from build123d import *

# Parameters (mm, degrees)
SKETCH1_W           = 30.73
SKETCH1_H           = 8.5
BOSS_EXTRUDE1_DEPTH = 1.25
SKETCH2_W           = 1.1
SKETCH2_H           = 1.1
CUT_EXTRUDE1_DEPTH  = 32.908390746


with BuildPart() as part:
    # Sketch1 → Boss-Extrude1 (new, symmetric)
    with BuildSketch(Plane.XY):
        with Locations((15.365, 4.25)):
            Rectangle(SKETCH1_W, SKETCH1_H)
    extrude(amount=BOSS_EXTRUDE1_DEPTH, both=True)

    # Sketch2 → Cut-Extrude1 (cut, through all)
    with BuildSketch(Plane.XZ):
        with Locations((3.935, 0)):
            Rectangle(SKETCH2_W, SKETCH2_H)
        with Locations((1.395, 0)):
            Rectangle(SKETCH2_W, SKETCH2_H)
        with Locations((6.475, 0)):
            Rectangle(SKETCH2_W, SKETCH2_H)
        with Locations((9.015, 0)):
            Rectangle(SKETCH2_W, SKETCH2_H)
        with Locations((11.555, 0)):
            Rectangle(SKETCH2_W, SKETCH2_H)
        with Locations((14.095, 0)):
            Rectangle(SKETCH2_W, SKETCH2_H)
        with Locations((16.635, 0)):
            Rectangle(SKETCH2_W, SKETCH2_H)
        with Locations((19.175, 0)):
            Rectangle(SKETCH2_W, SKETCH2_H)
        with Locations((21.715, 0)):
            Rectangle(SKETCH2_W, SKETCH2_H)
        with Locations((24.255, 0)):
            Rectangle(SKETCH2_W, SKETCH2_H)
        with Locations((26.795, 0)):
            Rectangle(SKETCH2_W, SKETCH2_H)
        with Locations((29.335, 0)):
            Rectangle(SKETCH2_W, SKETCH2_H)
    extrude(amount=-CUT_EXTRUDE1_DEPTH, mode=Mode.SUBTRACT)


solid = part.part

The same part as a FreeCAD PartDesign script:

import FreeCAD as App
import Part
import Sketcher
Q = App.Units.Quantity

doc = App.newDocument("Part")
params = doc.addObject("Spreadsheet::Sheet", "Params")
for row, (alias, value) in enumerate([
    ("sketch1_height", "8.5 mm"),
    ("sketch1_width", "30.73 mm"),
    ("pad1_length", "2.5 mm"),
    ("sketch2_width", "1.1 mm"),
], start=1):
    params.set(f"A{row}", alias)
    params.set(f"B{row}", "=" + value)
    params.setAlias(f"B{row}", alias)

body = doc.addObject("PartDesign::Body", "Body")

sketch1 = body.newObject("Sketcher::SketchObject", "Sketch")
sketch1.AttachmentSupport = (doc.getObject("XY_Plane"), [""])
sketch1.MapMode = "FlatFace"
sketch1.addGeometry([
    Part.LineSegment(App.Vector(0, 8, 0), App.Vector(0, 0, 0)),
    Part.LineSegment(App.Vector(0, 0, 0), App.Vector(31, 0, 0)),
    Part.LineSegment(App.Vector(31, 0, 0), App.Vector(31, 8, 0)),
    Part.LineSegment(App.Vector(31, 8, 0), App.Vector(0, 8, 0)),
], False)
sketch1.addConstraint([
    Sketcher.Constraint("Coincident", 0, 2, 1, 1),
    Sketcher.Constraint("Coincident", 1, 2, 2, 1),
    Sketcher.Constraint("Coincident", 2, 2, 3, 1),
    Sketcher.Constraint("Coincident", 3, 2, 0, 1),
    Sketcher.Constraint("Vertical", 0),
    Sketcher.Constraint("Horizontal", 1),
    Sketcher.Constraint("Vertical", 2),
    Sketcher.Constraint("Horizontal", 3),
    Sketcher.Constraint("Coincident", 0, 2, -1, 1),
    Sketcher.Constraint("DistanceY", 0, 2, 0, 1, Q("8.5 mm")),
    Sketcher.Constraint("DistanceX", 1, 1, 1, 2, Q("30.73 mm")),
])
sketch1.setExpression("Constraints[9]", "Params.sketch1_height")
sketch1.setExpression("Constraints[10]", "Params.sketch1_width")
pad1 = body.newObject("PartDesign::Pad", "Pad")
pad1.Profile = sketch1
pad1.setExpression("Length", "Params.pad1_length")
pad1.Midplane = True

sketch2 = body.newObject("Sketcher::SketchObject", "Sketch001")
sketch2.AttachmentSupport = (doc.getObject("XZ_Plane"), [""])
sketch2.MapMode = "FlatFace"
sketch2.addGeometry([
    Part.LineSegment(App.Vector(3.4, 0.6, 0), App.Vector(3.4, -0.6, 0)),
    Part.LineSegment(App.Vector(3.4, -0.6, 0), App.Vector(4.5, -0.6, 0)),
    Part.LineSegment(App.Vector(4.5, -0.6, 0), App.Vector(4.5, 0.6, 0)),
    Part.LineSegment(App.Vector(4.5, 0.6, 0), App.Vector(3.4, 0.6, 0)),
    Part.LineSegment(App.Vector(0.8, 0.6, 0), App.Vector(0.8, -0.6, 0)),
    Part.LineSegment(App.Vector(0.8, -0.6, 0), App.Vector(1.9, -0.6, 0)),
    Part.LineSegment(App.Vector(1.9, -0.6, 0), App.Vector(1.9, 0.6, 0)),
    Part.LineSegment(App.Vector(1.9, 0.6, 0), App.Vector(0.8, 0.6, 0)),
    Part.LineSegment(App.Vector(5.9, 0.6, 0), App.Vector(5.9, -0.6, 0)),
    Part.LineSegment(App.Vector(5.9, -0.6, 0), App.Vector(7, -0.6, 0)),
    Part.LineSegment(App.Vector(7, -0.6, 0), App.Vector(7, 0.6, 0)),
    Part.LineSegment(App.Vector(7, 0.6, 0), App.Vector(5.9, 0.6, 0)),
    Part.LineSegment(App.Vector(8.5, 0.6, 0), App.Vector(8.5, -0.6, 0)),
    Part.LineSegment(App.Vector(8.5, -0.6, 0), App.Vector(9.6, -0.6, 0)),
    Part.LineSegment(App.Vector(9.6, -0.6, 0), App.Vector(9.6, 0.6, 0)),
    Part.LineSegment(App.Vector(9.6, 0.6, 0), App.Vector(8.5, 0.6, 0)),
    Part.LineSegment(App.Vector(11, 0.6, 0), App.Vector(11, -0.6, 0)),
    Part.LineSegment(App.Vector(11, -0.6, 0), App.Vector(12.1, -0.6, 0)),
    Part.LineSegment(App.Vector(12.1, -0.6, 0), App.Vector(12.1, 0.6, 0)),
    Part.LineSegment(App.Vector(12.1, 0.6, 0), App.Vector(11, 0.6, 0)),
    Part.LineSegment(App.Vector(13.5, 0.6, 0), App.Vector(13.5, -0.6, 0)),
    Part.LineSegment(App.Vector(13.5, -0.6, 0), App.Vector(14.6, -0.6, 0)),
    Part.LineSegment(App.Vector(14.6, -0.6, 0), App.Vector(14.6, 0.6, 0)),
    Part.LineSegment(App.Vector(14.6, 0.6, 0), App.Vector(13.5, 0.6, 0)),
    Part.LineSegment(App.Vector(16.1, 0.6, 0), App.Vector(16.1, -0.6, 0)),
    Part.LineSegment(App.Vector(16.1, -0.6, 0), App.Vector(17.2, -0.6, 0)),
    Part.LineSegment(App.Vector(17.2, -0.6, 0), App.Vector(17.2, 0.6, 0)),
    Part.LineSegment(App.Vector(17.2, 0.6, 0), App.Vector(16.1, 0.6, 0)),
    Part.LineSegment(App.Vector(18.6, 0.6, 0), App.Vector(18.6, -0.6, 0)),
    Part.LineSegment(App.Vector(18.6, -0.6, 0), App.Vector(19.7, -0.6, 0)),
    Part.LineSegment(App.Vector(19.7, -0.6, 0), App.Vector(19.7, 0.6, 0)),
    Part.LineSegment(App.Vector(19.7, 0.6, 0), App.Vector(18.6, 0.6, 0)),
    Part.LineSegment(App.Vector(21.2, 0.6, 0), App.Vector(21.2, -0.6, 0)),
    Part.LineSegment(App.Vector(21.2, -0.6, 0), App.Vector(22.3, -0.6, 0)),
    Part.LineSegment(App.Vector(22.3, -0.6, 0), App.Vector(22.3, 0.6, 0)),
    Part.LineSegment(App.Vector(22.3, 0.6, 0), App.Vector(21.2, 0.6, 0)),
    Part.LineSegment(App.Vector(23.7, 0.6, 0), App.Vector(23.7, -0.6, 0)),
    Part.LineSegment(App.Vector(23.7, -0.6, 0), App.Vector(24.8, -0.6, 0)),
    Part.LineSegment(App.Vector(24.8, -0.6, 0), App.Vector(24.8, 0.6, 0)),
    Part.LineSegment(App.Vector(24.8, 0.6, 0), App.Vector(23.7, 0.6, 0)),
    Part.LineSegment(App.Vector(26.2, 0.6, 0), App.Vector(26.2, -0.6, 0)),
    Part.LineSegment(App.Vector(26.2, -0.6, 0), App.Vector(27.3, -0.6, 0)),
    Part.LineSegment(App.Vector(27.3, -0.6, 0), App.Vector(27.3, 0.6, 0)),
    Part.LineSegment(App.Vector(27.3, 0.6, 0), App.Vector(26.2, 0.6, 0)),
    Part.LineSegment(App.Vector(28.8, 0.6, 0), App.Vector(28.8, -0.6, 0)),
    Part.LineSegment(App.Vector(28.8, -0.6, 0), App.Vector(29.9, -0.6, 0)),
    Part.LineSegment(App.Vector(29.9, -0.6, 0), App.Vector(29.9, 0.6, 0)),
    Part.LineSegment(App.Vector(29.9, 0.6, 0), App.Vector(28.8, 0.6, 0)),
], False)
sketch2.addConstraint([
    Sketcher.Constraint("Coincident", 0, 2, 1, 1),
    Sketcher.Constraint("Coincident", 1, 2, 2, 1),
    Sketcher.Constraint("Coincident", 2, 2, 3, 1),
    Sketcher.Constraint("Coincident", 3, 2, 0, 1),
    Sketcher.Constraint("Coincident", 4, 2, 5, 1),
    Sketcher.Constraint("Coincident", 5, 2, 6, 1),
    Sketcher.Constraint("Coincident", 6, 2, 7, 1),
    Sketcher.Constraint("Coincident", 7, 2, 4, 1),
    Sketcher.Constraint("Coincident", 8, 2, 9, 1),
    Sketcher.Constraint("Coincident", 9, 2, 10, 1),
    Sketcher.Constraint("Coincident", 10, 2, 11, 1),
    Sketcher.Constraint("Coincident", 11, 2, 8, 1),
    Sketcher.Constraint("Coincident", 12, 2, 13, 1),
    Sketcher.Constraint("Coincident", 13, 2, 14, 1),
    Sketcher.Constraint("Coincident", 14, 2, 15, 1),
    Sketcher.Constraint("Coincident", 15, 2, 12, 1),
    Sketcher.Constraint("Coincident", 16, 2, 17, 1),
    Sketcher.Constraint("Coincident", 17, 2, 18, 1),
    Sketcher.Constraint("Coincident", 18, 2, 19, 1),
    Sketcher.Constraint("Coincident", 19, 2, 16, 1),
    Sketcher.Constraint("Coincident", 20, 2, 21, 1),
    Sketcher.Constraint("Coincident", 21, 2, 22, 1),
    Sketcher.Constraint("Coincident", 22, 2, 23, 1),
    Sketcher.Constraint("Coincident", 23, 2, 20, 1),
    Sketcher.Constraint("Coincident", 24, 2, 25, 1),
    Sketcher.Constraint("Coincident", 25, 2, 26, 1),
    Sketcher.Constraint("Coincident", 26, 2, 27, 1),
    Sketcher.Constraint("Coincident", 27, 2, 24, 1),
    Sketcher.Constraint("Coincident", 28, 2, 29, 1),
    Sketcher.Constraint("Coincident", 29, 2, 30, 1),
    Sketcher.Constraint("Coincident", 30, 2, 31, 1),
    Sketcher.Constraint("Coincident", 31, 2, 28, 1),
    Sketcher.Constraint("Coincident", 32, 2, 33, 1),
    Sketcher.Constraint("Coincident", 33, 2, 34, 1),
    Sketcher.Constraint("Coincident", 34, 2, 35, 1),
    Sketcher.Constraint("Coincident", 35, 2, 32, 1),
    Sketcher.Constraint("Coincident", 36, 2, 37, 1),
    Sketcher.Constraint("Coincident", 37, 2, 38, 1),
    Sketcher.Constraint("Coincident", 38, 2, 39, 1),
    Sketcher.Constraint("Coincident", 39, 2, 36, 1),
    Sketcher.Constraint("Coincident", 40, 2, 41, 1),
    Sketcher.Constraint("Coincident", 41, 2, 42, 1),
    Sketcher.Constraint("Coincident", 42, 2, 43, 1),
    Sketcher.Constraint("Coincident", 43, 2, 40, 1),
    Sketcher.Constraint("Coincident", 44, 2, 45, 1),
    Sketcher.Constraint("Coincident", 45, 2, 46, 1),
    Sketcher.Constraint("Coincident", 46, 2, 47, 1),
    Sketcher.Constraint("Coincident", 47, 2, 44, 1),
    Sketcher.Constraint("Vertical", 0),
    Sketcher.Constraint("Horizontal", 1),
    Sketcher.Constraint("Vertical", 2),
    Sketcher.Constraint("Horizontal", 3),
    Sketcher.Constraint("Vertical", 4),
    Sketcher.Constraint("Horizontal", 5),
    Sketcher.Constraint("Vertical", 6),
    Sketcher.Constraint("Horizontal", 7),
    Sketcher.Constraint("Vertical", 8),
    Sketcher.Constraint("Horizontal", 9),
    Sketcher.Constraint("Vertical", 10),
    Sketcher.Constraint("Horizontal", 11),
    Sketcher.Constraint("Vertical", 12),
    Sketcher.Constraint("Horizontal", 13),
    Sketcher.Constraint("Vertical", 14),
    Sketcher.Constraint("Horizontal", 15),
    Sketcher.Constraint("Vertical", 16),
    Sketcher.Constraint("Horizontal", 17),
    Sketcher.Constraint("Vertical", 18),
    Sketcher.Constraint("Horizontal", 19),
    Sketcher.Constraint("Vertical", 20),
    Sketcher.Constraint("Horizontal", 21),
    Sketcher.Constraint("Vertical", 22),
    Sketcher.Constraint("Horizontal", 23),
    Sketcher.Constraint("Vertical", 24),
    Sketcher.Constraint("Horizontal", 25),
    Sketcher.Constraint("Vertical", 26),
    Sketcher.Constraint("Horizontal", 27),
    Sketcher.Constraint("Vertical", 28),
    Sketcher.Constraint("Horizontal", 29),
    Sketcher.Constraint("Vertical", 30),
    Sketcher.Constraint("Horizontal", 31),
    Sketcher.Constraint("Vertical", 32),
    Sketcher.Constraint("Horizontal", 33),
    Sketcher.Constraint("Vertical", 34),
    Sketcher.Constraint("Horizontal", 35),
    Sketcher.Constraint("Vertical", 36),
    Sketcher.Constraint("Horizontal", 37),
    Sketcher.Constraint("Vertical", 38),
    Sketcher.Constraint("Horizontal", 39),
    Sketcher.Constraint("Vertical", 40),
    Sketcher.Constraint("Horizontal", 41),
    Sketcher.Constraint("Vertical", 42),
    Sketcher.Constraint("Horizontal", 43),
    Sketcher.Constraint("Vertical", 44),
    Sketcher.Constraint("Horizontal", 45),
    Sketcher.Constraint("Vertical", 46),
    Sketcher.Constraint("Horizontal", 47),
    Sketcher.Constraint("Horizontal", 1, 2, 4, 2),
    Sketcher.Constraint("Horizontal", 3, 2, 6, 2),
    Sketcher.Constraint("Horizontal", 5, 2, 8, 2),
    Sketcher.Constraint("Horizontal", 7, 2, 10, 2),
    Sketcher.Constraint("Horizontal", 9, 2, 12, 2),
    Sketcher.Constraint("Horizontal", 11, 2, 14, 2),
    Sketcher.Constraint("Horizontal", 13, 2, 16, 2),
    Sketcher.Constraint("Horizontal", 15, 2, 18, 2),
    Sketcher.Constraint("Horizontal", 17, 2, 20, 2),
    Sketcher.Constraint("Horizontal", 19, 2, 22, 2),
    Sketcher.Constraint("Horizontal", 21, 2, 24, 2),
    Sketcher.Constraint("Horizontal", 23, 2, 26, 2),
    Sketcher.Constraint("Horizontal", 25, 2, 28, 2),
    Sketcher.Constraint("Horizontal", 27, 2, 30, 2),
    Sketcher.Constraint("Horizontal", 29, 2, 32, 2),
    Sketcher.Constraint("Horizontal", 31, 2, 34, 2),
    Sketcher.Constraint("Horizontal", 33, 2, 36, 2),
    Sketcher.Constraint("Horizontal", 35, 2, 38, 2),
    Sketcher.Constraint("Horizontal", 37, 2, 40, 2),
    Sketcher.Constraint("Horizontal", 39, 2, 42, 2),
    Sketcher.Constraint("Horizontal", 41, 2, 44, 2),
    Sketcher.Constraint("Horizontal", 43, 2, 46, 2),
    Sketcher.Constraint("Equal", 3, 5),
    Sketcher.Constraint("Equal", 7, 9),
    Sketcher.Constraint("Equal", 11, 13),
    Sketcher.Constraint("Equal", 15, 17),
    Sketcher.Constraint("Equal", 19, 21),
    Sketcher.Constraint("Equal", 23, 25),
    Sketcher.Constraint("Equal", 27, 29),
    Sketcher.Constraint("Equal", 31, 33),
    Sketcher.Constraint("Equal", 35, 37),
    Sketcher.Constraint("Equal", 39, 41),
    Sketcher.Constraint("Equal", 43, 45),
    Sketcher.Constraint("Equal", 47, 0),
    Sketcher.Constraint("DistanceX", 1, 1, 1, 2, Q("1.1 mm")),
    Sketcher.Constraint("DistanceY", 0, 2, -1, 1, Q("0.55 mm")),
    Sketcher.Constraint("DistanceX", 4, 2, 0, 2, Q("2.54 mm")),
    Sketcher.Constraint("DistanceX", 1, 2, 8, 2, Q("1.44 mm")),
    Sketcher.Constraint("DistanceX", 9, 2, 12, 2, Q("1.44 mm")),
    Sketcher.Constraint("DistanceX", 13, 2, 16, 2, Q("1.44 mm")),
    Sketcher.Constraint("DistanceX", 17, 2, 20, 2, Q("1.44 mm")),
    Sketcher.Constraint("DistanceX", 21, 2, 24, 2, Q("1.44 mm")),
    Sketcher.Constraint("DistanceX", 25, 2, 28, 2, Q("1.44 mm")),
    Sketcher.Constraint("DistanceX", 29, 2, 32, 2, Q("1.44 mm")),
    Sketcher.Constraint("DistanceX", 33, 2, 36, 2, Q("1.44 mm")),
    Sketcher.Constraint("DistanceX", 37, 2, 40, 2, Q("1.44 mm")),
    Sketcher.Constraint("DistanceX", 41, 2, 44, 2, Q("1.44 mm")),
    Sketcher.Constraint("DistanceX", -1, 1, 0, 2, Q("3.385 mm")),
])
sketch2.setExpression("Constraints[130]", "Params.sketch2_width")
pocket1 = body.newObject("PartDesign::Pocket", "Pocket")
pocket1.Profile = sketch2
pocket1.Type = "ThroughAll"

doc.recompute()
